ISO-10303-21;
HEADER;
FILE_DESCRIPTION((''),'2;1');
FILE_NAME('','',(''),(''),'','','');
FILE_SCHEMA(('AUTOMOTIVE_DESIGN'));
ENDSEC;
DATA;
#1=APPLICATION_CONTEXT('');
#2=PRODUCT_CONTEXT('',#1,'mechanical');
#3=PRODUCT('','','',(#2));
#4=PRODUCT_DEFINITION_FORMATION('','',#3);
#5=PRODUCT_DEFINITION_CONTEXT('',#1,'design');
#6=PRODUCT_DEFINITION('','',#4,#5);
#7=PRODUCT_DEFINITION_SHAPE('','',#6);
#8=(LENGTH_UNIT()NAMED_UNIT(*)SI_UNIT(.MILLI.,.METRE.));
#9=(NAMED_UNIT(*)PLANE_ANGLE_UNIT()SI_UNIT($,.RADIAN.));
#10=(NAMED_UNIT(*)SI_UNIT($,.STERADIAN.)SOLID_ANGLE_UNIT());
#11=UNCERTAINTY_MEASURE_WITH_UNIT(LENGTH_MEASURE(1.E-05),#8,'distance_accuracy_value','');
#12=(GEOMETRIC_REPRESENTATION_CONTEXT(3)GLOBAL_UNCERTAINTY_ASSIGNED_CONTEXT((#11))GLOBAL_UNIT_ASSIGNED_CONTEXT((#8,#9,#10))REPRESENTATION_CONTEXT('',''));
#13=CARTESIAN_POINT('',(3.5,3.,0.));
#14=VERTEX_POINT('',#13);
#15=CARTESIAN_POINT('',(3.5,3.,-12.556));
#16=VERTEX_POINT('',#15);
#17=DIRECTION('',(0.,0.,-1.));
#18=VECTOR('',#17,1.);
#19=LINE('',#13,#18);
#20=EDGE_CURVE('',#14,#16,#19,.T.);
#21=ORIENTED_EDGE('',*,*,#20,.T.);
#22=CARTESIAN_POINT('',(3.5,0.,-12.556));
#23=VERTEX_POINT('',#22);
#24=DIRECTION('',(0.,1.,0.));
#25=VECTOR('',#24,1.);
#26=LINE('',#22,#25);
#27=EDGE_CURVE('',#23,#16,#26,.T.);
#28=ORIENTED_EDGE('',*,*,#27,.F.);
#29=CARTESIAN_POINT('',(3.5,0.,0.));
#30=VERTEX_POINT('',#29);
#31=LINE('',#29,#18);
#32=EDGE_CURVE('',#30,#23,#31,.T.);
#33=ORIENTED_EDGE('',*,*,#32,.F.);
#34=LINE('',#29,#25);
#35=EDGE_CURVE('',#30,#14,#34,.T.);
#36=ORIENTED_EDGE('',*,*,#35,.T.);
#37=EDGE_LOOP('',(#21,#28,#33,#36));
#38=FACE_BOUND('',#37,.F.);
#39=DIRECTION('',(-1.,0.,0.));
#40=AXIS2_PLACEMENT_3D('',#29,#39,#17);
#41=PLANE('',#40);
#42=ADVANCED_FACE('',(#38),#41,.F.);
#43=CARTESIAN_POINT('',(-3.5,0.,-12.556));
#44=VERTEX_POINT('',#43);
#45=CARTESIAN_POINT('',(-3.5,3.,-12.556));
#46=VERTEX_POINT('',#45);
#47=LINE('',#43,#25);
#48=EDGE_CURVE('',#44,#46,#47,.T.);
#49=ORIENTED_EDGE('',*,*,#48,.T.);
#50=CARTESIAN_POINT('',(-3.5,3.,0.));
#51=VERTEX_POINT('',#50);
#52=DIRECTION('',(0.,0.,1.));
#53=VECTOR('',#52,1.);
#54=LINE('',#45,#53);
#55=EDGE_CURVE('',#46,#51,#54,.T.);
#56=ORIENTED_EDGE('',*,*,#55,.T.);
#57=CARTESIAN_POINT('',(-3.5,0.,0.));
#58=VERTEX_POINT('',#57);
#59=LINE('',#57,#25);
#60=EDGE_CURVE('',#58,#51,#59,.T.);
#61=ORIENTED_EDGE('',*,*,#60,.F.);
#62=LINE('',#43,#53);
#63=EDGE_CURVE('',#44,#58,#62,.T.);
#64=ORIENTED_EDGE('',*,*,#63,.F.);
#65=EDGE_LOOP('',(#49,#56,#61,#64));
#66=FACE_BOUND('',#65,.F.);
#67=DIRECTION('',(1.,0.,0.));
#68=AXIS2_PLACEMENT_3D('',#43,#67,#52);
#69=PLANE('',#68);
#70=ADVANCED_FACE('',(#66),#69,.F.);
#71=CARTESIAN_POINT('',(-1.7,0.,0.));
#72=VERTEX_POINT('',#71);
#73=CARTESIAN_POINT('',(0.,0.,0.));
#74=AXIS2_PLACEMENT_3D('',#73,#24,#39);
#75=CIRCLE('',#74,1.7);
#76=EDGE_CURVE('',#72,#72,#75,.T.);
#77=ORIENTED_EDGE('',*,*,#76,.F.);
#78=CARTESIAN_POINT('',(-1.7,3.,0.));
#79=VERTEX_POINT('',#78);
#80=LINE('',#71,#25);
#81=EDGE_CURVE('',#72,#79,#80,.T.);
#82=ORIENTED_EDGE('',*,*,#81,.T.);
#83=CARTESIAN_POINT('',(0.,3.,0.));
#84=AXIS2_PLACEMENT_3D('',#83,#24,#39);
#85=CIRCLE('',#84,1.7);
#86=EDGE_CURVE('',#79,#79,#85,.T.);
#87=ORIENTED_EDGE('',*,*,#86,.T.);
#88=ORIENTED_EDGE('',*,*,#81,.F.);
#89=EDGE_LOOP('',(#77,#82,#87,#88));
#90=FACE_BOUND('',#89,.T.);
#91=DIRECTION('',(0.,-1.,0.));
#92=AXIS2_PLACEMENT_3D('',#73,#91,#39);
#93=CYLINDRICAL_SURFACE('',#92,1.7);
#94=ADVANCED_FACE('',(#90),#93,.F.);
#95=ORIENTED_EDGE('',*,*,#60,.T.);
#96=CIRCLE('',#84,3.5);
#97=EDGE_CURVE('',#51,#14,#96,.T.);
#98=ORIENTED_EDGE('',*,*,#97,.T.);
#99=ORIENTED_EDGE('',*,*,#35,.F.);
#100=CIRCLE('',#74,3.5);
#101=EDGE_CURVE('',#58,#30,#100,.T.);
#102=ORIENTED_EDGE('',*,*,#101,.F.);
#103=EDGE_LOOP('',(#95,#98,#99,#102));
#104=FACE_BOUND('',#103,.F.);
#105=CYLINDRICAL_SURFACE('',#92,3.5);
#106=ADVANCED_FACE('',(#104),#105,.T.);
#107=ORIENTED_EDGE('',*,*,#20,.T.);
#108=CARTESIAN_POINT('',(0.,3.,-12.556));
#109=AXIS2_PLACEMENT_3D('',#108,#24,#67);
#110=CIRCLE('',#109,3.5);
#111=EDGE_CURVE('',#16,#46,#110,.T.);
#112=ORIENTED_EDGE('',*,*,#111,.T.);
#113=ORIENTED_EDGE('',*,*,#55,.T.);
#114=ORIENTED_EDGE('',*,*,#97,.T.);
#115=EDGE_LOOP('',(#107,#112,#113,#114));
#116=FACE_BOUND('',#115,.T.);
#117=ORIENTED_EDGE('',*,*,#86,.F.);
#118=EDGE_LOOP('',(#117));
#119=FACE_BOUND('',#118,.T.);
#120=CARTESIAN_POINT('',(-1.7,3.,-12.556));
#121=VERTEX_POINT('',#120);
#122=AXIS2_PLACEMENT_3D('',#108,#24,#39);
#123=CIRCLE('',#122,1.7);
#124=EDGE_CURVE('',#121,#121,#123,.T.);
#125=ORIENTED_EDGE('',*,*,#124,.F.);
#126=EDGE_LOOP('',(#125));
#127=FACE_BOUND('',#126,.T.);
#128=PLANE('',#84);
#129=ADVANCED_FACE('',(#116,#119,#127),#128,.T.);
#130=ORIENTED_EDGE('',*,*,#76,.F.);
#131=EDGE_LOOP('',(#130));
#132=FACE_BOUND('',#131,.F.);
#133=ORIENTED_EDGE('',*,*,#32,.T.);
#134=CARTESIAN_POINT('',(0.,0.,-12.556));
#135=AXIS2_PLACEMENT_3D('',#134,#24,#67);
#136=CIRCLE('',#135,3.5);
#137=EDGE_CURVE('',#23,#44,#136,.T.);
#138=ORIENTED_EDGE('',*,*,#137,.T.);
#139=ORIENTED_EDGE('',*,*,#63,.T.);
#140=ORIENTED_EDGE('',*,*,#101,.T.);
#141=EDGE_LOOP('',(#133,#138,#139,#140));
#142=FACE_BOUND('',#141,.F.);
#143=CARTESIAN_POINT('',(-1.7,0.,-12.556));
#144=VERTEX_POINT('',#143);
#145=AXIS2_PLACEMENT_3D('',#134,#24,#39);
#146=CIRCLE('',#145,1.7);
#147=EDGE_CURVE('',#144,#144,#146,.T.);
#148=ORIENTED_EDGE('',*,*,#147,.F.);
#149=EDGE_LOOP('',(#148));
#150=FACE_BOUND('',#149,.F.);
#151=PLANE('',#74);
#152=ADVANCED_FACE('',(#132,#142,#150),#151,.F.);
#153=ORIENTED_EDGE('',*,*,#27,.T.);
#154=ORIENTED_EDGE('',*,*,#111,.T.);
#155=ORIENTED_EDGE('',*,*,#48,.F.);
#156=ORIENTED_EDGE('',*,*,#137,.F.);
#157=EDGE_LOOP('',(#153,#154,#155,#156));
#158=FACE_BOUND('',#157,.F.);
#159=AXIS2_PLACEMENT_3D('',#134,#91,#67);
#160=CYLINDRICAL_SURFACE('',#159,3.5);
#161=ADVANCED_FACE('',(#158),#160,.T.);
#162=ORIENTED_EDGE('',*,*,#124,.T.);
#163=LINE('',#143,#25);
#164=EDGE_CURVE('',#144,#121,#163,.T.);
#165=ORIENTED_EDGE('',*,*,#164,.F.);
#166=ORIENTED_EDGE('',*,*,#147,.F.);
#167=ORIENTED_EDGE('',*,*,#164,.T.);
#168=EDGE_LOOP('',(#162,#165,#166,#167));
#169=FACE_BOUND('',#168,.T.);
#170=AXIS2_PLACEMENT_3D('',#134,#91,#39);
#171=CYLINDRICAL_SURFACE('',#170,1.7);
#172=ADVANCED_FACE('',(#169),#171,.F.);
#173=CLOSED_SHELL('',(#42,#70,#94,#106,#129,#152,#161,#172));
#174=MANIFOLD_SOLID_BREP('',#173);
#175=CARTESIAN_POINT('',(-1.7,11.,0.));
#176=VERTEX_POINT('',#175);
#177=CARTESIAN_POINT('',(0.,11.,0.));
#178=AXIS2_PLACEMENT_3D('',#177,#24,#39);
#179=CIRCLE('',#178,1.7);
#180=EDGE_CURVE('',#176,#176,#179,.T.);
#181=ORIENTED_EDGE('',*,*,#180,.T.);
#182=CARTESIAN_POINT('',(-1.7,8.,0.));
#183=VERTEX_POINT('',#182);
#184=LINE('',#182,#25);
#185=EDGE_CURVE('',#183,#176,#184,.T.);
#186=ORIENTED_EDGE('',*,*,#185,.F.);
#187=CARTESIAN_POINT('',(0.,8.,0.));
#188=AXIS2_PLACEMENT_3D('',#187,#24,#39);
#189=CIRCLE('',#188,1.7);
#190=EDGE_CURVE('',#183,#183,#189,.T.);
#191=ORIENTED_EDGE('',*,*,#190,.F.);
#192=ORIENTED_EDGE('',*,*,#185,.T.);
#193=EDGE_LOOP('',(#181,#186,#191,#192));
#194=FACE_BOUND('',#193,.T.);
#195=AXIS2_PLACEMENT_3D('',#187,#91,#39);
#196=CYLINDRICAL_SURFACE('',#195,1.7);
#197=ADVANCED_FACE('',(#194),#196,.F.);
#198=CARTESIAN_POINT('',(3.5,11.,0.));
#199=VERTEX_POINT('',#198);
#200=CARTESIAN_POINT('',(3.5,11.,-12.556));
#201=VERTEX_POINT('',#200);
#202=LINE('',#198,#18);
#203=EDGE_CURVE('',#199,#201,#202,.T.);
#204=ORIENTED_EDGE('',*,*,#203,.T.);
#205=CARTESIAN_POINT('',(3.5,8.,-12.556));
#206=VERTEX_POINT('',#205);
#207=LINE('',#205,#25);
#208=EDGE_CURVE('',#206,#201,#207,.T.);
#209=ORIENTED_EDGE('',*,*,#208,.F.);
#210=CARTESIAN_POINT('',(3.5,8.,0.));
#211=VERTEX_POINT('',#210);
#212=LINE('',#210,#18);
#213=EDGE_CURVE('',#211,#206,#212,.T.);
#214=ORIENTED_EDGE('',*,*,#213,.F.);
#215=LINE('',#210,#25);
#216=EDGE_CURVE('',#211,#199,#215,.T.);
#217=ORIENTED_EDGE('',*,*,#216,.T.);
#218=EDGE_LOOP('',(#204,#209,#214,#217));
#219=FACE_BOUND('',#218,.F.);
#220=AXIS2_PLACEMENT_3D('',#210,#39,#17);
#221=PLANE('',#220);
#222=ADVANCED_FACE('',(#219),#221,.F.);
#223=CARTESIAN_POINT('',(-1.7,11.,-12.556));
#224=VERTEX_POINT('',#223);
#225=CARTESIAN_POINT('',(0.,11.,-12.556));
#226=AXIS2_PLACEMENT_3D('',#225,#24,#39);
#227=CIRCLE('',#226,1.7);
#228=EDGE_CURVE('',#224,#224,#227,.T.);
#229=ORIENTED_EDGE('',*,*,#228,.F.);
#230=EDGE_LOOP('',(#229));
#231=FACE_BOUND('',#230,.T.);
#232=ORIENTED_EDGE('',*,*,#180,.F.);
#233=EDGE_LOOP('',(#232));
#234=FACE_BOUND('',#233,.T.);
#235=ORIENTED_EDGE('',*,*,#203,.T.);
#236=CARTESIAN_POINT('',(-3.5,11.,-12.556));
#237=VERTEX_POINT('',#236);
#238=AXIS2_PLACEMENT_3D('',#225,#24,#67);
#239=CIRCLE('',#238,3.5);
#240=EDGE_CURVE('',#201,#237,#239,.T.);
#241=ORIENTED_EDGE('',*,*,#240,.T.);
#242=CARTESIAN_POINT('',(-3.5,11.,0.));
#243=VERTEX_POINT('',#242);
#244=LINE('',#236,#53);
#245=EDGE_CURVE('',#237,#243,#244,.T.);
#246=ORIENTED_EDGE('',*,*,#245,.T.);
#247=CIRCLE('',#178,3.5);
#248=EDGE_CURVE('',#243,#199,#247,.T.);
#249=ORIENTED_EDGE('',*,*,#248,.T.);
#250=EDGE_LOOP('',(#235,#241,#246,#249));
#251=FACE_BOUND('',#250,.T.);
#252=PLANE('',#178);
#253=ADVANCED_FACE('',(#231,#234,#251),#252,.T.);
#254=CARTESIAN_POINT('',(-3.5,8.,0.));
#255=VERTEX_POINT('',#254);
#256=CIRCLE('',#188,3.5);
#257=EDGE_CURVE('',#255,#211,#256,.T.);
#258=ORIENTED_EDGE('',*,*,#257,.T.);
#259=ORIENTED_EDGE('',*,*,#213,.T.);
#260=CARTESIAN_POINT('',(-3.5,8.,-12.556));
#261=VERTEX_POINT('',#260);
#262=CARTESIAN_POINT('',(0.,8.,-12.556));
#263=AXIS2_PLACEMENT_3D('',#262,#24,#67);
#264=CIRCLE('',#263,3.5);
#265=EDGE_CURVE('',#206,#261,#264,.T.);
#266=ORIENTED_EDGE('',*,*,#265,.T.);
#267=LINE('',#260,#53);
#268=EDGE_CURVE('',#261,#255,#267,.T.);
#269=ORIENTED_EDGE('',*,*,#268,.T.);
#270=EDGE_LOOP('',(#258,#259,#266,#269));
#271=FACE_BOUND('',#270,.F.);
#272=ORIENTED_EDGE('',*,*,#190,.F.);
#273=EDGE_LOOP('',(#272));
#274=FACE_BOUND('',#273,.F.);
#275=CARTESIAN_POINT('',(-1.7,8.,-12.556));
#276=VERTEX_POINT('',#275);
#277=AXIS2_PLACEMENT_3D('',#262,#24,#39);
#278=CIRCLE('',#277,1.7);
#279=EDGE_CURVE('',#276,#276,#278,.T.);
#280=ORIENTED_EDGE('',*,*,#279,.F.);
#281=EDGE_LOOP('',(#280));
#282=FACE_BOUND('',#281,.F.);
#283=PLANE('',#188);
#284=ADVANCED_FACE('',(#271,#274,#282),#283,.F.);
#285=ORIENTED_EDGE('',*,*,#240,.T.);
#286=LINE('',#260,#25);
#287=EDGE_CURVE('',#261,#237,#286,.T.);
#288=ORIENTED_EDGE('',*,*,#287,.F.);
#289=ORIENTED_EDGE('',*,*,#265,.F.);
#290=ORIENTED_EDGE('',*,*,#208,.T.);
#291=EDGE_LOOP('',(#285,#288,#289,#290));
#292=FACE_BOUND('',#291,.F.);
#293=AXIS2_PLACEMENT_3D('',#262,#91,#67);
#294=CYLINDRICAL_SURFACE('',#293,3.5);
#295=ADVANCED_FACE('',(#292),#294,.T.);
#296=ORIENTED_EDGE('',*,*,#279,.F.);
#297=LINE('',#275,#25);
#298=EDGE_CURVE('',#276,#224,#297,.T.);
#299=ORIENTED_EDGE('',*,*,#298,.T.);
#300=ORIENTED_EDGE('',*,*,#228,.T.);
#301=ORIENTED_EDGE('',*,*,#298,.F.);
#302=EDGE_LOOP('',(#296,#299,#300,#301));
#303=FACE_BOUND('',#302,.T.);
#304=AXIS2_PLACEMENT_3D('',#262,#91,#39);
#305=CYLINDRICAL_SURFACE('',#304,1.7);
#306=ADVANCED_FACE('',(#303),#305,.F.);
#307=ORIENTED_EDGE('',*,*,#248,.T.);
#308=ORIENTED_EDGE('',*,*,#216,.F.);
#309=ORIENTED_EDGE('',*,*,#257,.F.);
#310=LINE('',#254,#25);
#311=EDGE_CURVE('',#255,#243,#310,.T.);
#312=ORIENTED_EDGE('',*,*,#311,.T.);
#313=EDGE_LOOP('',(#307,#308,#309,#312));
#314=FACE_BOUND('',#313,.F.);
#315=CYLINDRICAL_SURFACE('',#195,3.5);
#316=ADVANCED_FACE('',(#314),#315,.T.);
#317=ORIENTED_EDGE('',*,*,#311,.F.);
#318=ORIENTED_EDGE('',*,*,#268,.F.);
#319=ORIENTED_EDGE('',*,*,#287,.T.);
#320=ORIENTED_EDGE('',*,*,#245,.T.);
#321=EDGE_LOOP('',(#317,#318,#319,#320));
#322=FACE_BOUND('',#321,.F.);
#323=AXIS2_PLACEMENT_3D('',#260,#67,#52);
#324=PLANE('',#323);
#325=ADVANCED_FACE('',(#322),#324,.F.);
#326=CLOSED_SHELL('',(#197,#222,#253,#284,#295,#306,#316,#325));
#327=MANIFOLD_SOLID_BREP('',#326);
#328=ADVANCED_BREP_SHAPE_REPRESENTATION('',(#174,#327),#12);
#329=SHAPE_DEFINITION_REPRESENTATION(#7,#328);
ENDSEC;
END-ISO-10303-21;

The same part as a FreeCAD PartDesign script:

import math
import FreeCAD as App
import Part
import Sketcher

V = App.Vector

doc = App.newDocument("Part")
body = doc.addObject("PartDesign::Body", "Body")
body.AllowCompound = True

# Sketch on XZ plane
sketch1 = body.newObject("Sketcher::SketchObject", "Sketch")
sketch1.AttachmentSupport = (doc.getObject("XZ_Plane"), [""])
sketch1.MapMode = "FlatFace"
sketch1.addGeometry(Part.ArcOfCircle(Part.Circle(V(0, 0, 0), V(0, 0, 1), 3.5), math.radians(0), math.radians(180)), False)
sketch1.addGeometry(Part.LineSegment(V(3.5, 0, 0), V(3.5, -12.556, 0)), False)
sketch1.addGeometry(Part.ArcOfCircle(Part.Circle(V(0, -12.556, 0), V(0, 0, 1), 3.5), math.radians(180), math.radians(360)), False)
sketch1.addGeometry(Part.LineSegment(V(-3.5, -12.556, 0), V(-3.5, 0, 0)), False)
sketch1.addGeometry(Part.Circle(V(0, -12.556, 0), V(0, 0, 1), 1.7), False)
sketch1.addGeometry(Part.Circle(V(0, 0, 0), V(0, 0, 1), 1.7), False)
sketch1.addConstraint(Sketcher.Constraint("Tangent", 0, 1, 1, 1))
sketch1.addConstraint(Sketcher.Constraint("Tangent", 1, 2, 2, 2))
sketch1.addConstraint(Sketcher.Constraint("Tangent", 2, 1, 3, 1))
sketch1.addConstraint(Sketcher.Constraint("Tangent", 3, 2, 0, 2))
sketch1.addConstraint(Sketcher.Constraint("Vertical", 1))
sketch1.addConstraint(Sketcher.Constraint("Vertical", 3))
sketch1.addConstraint(Sketcher.Constraint("Coincident", 0, 3, -1, 1))
sketch1.addConstraint(Sketcher.Constraint("Coincident", 5, 3, -1, 1))
sketch1.addConstraint(Sketcher.Constraint("Coincident", 4, 3, 2, 3))
sketch1.addConstraint(Sketcher.Constraint("Equal", 4, 5))
sketch1.addConstraint(Sketcher.Constraint("Diameter", 4, 3.4))
sketch1.addConstraint(Sketcher.Constraint("Radius", 0, 3.5))
sketch1.addConstraint(Sketcher.Constraint("DistanceY", 1, 2, 1, 1, 12.556))
pad1 = body.newObject("PartDesign::Pad", "Pad")
pad1.Profile = sketch1
pad1.Length = 3
pad1.Reversed = True
doc.recompute()

linearpattern = body.newObject("PartDesign::LinearPattern", "LinearPattern")
linearpattern.Originals = [pad1]
linearpattern.Direction = (doc.getObject("Y_Axis"), [""])
linearpattern.Mode = "offset"
linearpattern.Offset = 8
linearpattern.Occurrences = 2
body.Tip = linearpattern

doc.recompute()
